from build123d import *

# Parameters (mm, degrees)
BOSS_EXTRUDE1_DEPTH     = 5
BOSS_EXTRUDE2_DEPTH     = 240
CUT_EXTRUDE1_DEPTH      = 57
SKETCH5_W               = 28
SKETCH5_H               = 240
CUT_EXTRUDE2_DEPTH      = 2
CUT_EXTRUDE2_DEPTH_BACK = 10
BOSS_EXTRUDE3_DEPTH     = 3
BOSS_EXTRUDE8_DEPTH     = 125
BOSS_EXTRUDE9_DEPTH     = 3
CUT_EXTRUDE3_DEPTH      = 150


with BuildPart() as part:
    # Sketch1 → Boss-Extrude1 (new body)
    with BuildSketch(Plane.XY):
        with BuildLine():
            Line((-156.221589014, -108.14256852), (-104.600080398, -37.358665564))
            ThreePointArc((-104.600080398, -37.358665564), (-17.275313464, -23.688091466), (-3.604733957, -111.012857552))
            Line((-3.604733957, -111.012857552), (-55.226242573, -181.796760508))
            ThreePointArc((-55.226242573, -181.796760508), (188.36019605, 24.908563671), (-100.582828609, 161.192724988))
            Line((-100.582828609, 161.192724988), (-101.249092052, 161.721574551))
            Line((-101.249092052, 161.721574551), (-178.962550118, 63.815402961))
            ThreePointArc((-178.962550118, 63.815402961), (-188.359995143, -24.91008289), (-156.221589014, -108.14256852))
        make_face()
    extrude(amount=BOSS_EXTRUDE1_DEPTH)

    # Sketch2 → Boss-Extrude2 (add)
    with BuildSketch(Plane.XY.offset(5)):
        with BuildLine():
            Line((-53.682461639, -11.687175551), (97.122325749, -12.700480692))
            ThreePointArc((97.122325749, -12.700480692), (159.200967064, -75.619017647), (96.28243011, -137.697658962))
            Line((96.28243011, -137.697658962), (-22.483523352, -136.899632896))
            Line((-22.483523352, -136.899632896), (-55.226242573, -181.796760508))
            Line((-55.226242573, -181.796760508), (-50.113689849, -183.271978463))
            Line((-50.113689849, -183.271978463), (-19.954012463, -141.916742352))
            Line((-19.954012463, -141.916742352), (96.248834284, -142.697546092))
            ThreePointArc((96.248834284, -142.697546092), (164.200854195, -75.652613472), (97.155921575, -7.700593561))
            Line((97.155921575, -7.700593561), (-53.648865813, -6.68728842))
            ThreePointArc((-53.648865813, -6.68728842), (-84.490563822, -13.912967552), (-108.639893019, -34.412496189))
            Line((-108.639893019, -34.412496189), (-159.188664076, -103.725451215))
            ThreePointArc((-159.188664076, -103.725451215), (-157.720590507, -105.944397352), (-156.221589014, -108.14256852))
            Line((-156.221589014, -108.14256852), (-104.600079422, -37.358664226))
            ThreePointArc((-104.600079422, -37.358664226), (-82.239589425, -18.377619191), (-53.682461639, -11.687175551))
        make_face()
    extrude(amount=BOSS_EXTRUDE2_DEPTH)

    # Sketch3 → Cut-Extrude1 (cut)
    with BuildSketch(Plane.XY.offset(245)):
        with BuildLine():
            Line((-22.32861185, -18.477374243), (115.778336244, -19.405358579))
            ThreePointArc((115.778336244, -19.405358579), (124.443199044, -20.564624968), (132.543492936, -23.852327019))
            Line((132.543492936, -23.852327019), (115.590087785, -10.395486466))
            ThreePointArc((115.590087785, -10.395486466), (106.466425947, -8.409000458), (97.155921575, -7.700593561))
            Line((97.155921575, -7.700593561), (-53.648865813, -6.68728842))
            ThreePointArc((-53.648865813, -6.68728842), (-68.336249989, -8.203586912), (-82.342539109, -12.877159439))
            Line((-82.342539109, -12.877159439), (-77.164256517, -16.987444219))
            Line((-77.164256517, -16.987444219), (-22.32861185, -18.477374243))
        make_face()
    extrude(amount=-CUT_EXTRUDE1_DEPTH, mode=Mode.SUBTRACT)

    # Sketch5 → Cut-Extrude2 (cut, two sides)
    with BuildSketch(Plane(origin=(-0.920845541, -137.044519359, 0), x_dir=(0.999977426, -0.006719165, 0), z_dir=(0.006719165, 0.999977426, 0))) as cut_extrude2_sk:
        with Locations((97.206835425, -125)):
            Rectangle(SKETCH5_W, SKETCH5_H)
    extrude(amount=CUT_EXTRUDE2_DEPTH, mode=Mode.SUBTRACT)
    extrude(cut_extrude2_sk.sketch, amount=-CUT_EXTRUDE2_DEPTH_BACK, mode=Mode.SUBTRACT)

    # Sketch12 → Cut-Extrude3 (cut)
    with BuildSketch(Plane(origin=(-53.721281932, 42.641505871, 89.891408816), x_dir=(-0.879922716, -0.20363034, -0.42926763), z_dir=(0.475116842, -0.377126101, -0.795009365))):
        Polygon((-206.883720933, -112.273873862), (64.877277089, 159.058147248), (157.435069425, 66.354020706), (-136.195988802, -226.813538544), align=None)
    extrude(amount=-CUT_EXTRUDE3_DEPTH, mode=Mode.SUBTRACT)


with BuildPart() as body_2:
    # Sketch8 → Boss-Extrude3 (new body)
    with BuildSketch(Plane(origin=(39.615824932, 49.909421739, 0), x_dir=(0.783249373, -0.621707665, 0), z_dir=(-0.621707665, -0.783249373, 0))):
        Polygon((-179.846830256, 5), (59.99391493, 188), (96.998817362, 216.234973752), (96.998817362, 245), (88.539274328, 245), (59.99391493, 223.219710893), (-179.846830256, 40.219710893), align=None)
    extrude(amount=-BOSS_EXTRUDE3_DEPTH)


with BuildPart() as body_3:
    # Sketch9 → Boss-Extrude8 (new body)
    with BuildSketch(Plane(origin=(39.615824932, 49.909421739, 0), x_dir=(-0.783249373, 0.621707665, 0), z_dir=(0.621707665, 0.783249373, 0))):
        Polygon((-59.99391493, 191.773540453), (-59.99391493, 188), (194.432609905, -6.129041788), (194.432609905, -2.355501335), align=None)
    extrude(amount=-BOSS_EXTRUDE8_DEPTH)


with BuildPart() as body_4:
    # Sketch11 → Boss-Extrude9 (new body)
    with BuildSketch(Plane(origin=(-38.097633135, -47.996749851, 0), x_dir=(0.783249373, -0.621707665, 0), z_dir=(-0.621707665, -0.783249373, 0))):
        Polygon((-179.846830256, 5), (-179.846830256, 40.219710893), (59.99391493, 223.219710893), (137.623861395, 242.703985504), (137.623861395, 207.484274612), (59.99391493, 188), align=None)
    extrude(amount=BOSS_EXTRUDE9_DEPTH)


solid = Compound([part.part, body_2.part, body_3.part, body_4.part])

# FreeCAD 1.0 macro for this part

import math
import FreeCAD as App
import Part
import Sketcher


def add_polygon(sketch, points):
    """Adds a closed chain of lines whose ends are joined by coincident constraints."""
    first, n = sketch.GeometryCount, len(points)
    for a, b in zip(points, points[1:] + points[:1]):
        sketch.addGeometry(Part.LineSegment(App.Vector(*a, 0), App.Vector(*b, 0)), False)
    for i in range(n):
        sketch.addConstraint(Sketcher.Constraint("Coincident", first + i, 2, first + (i + 1) % n, 1))

doc = App.newDocument("Part")
params = doc.addObject("Spreadsheet::Sheet", "Params")
for row, (alias, value) in enumerate([
    ("sketch1_radius", "190 mm"),
    ("sketch1_radius2", "190 mm"),
    ("sketch1_radius3", "62.5 mm"),
    ("sketch1_length", "125 mm"),
    ("pad1_length", "5 mm"),
    ("sketch2_radius", "189.999999 mm"),
    ("sketch2_radius2", "62.5 mm"),
    ("sketch2_radius3", "67.5 mm"),
    ("pad2_length", "240 mm"),
    ("sketch3_radius", "67.5 mm"),
    ("pocket1_length", "57 mm"),
    ("sketch4_width", "28 mm"),
    ("sketch4_height", "240 mm"),
    ("pocket2_length", "2 mm"),
    ("pocket2_length2", "10 mm"),
    ("sketch5_length", "131 mm"),
    ("pocket3_length", "150 mm"),
    ("pad3_length", "3 mm"),
    ("pad4_length", "125 mm"),
    ("pad5_length", "3 mm"),
], start=1):
    params.set(f"A{row}", alias)
    params.set(f"B{row}", "=" + value)
    params.setAlias(f"B{row}", alias)

body = doc.addObject("PartDesign::Body", "Body")

# Sketch on XY plane
sketch1 = doc.addObject("Sketcher::SketchObject", "Sketch")
body.addObject(sketch1)
sketch1.AttachmentSupport = (doc.XY_Plane, [""])
sketch1.MapMode = "FlatFace"
sketch1.addGeometry(Part.LineSegment(App.Vector(-156.221589, -108.142569, 0), App.Vector(-104.60008, -37.358666, 0)), False)
sketch1.addGeometry(Part.ArcOfCircle(Part.Circle(App.Vector(-54.102409, -74.185765, 0), App.Vector(0, 0, 1), 62.5), math.radians(-36.102633), math.radians(143.89736)), False)
sketch1.addGeometry(Part.LineSegment(App.Vector(-3.604734, -111.012858, 0), App.Vector(-55.226243, -181.796761, 0)), False)
sketch1.addGeometry(Part.ArcOfCircle(Part.Circle(App.Vector(0, 0, 0), App.Vector(0, 0, 1), 190), math.radians(-106.897739), math.radians(121.963797)), False)
sketch1.addGeometry(Part.LineSegment(App.Vector(-100.582829, 161.192725, 0), App.Vector(-101.249092, 161.721575, 0)), False)
sketch1.addGeometry(Part.LineSegment(App.Vector(-101.249092, 161.721575, 0), App.Vector(-178.96255, 63.815403, 0)), False)
sketch1.addGeometry(Part.ArcOfCircle(Part.Circle(App.Vector(0, 0, 0), App.Vector(0, 0, 1), 190), math.radians(160.374516), math.radians(214.692466)), False)
sketch1.addConstraint(Sketcher.Constraint("Coincident", 0, 2, 1, 2))
sketch1.addConstraint(Sketcher.Constraint("Coincident", 1, 1, 2, 1))
sketch1.addConstraint(Sketcher.Constraint("Coincident", 2, 2, 3, 1))
sketch1.addConstraint(Sketcher.Constraint("Coincident", 3, 2, 4, 1))
sketch1.addConstraint(Sketcher.Constraint("Coincident", 4, 2, 5, 1))
sketch1.addConstraint(Sketcher.Constraint("Coincident", 5, 2, 6, 1))
sketch1.addConstraint(Sketcher.Constraint("Coincident", 6, 2, 0, 1))
sketch1.addConstraint(Sketcher.Constraint("Coincident", 3, 3, -1, 1))
sketch1.addConstraint(Sketcher.Constraint("Coincident", 6, 3, -1, 1))
sketch1.addConstraint(Sketcher.Constraint("Radius", 3, 190.0))
sketch1.addConstraint(Sketcher.Constraint("Radius", 6, 190.0))
sketch1.addConstraint(Sketcher.Constraint("Radius", 1, 62.5))
sketch1.addConstraint(Sketcher.Constraint("Distance", 5, 125.0))
sketch1.addConstraint(Sketcher.Constraint("DistanceY", 1, 3, 0, 2, 36.827099))
sketch1.addConstraint(Sketcher.Constraint("Distance", 4, 0.85064))
sketch1.addConstraint(Sketcher.Constraint("DistanceX", 1, 3, -1, 1, 54.102409))
sketch1.addConstraint(Sketcher.Constraint("DistanceY", 2, 2, -1, 1, 181.796761))
sketch1.addConstraint(Sketcher.Constraint("DistanceX", 3, 2, -1, 1, 100.582829))
sketch1.addConstraint(Sketcher.Constraint("DistanceX", 5, 2, -1, 1, 178.96255))
sketch1.addConstraint(Sketcher.Constraint("DistanceX", 6, 2, -1, 1, 156.221589))
sketch1.addConstraint(Sketcher.Constraint("DistanceY", 1, 1, 0, 2, 73.654192))
sketch1.addConstraint(Sketcher.Constraint("DistanceY", 0, 2, 3, 2, 198.551391))
sketch1.setExpression("Constraints[9]", "Params.sketch1_radius")
sketch1.setExpression("Constraints[10]", "Params.sketch1_radius2")
sketch1.setExpression("Constraints[11]", "Params.sketch1_radius3")
sketch1.setExpression("Constraints[12]", "Params.sketch1_length")
pad1 = doc.addObject("PartDesign::Pad", "Pad")
body.addObject(pad1)
pad1.Profile = sketch1
pad1.setExpression("Length", "Params.pad1_length")

# Sketch on XY plane
sketch2 = doc.addObject("Sketcher::SketchObject", "Sketch001")
body.addObject(sketch2)
sketch2.AttachmentSupport = (doc.XY_Plane, [""])
sketch2.MapMode = "FlatFace"
sketch2.AttachmentOffset = App.Placement(App.Vector(0, 0, 5), App.Rotation())
sketch2.addGeometry(Part.LineSegment(App.Vector(-54, -12, 0), App.Vector(97, -13, 0)), False)
sketch2.addGeometry(Part.ArcOfCircle(Part.Circle(App.Vector(97, -75, 0), App.Vector(0, 0, 1), 62), math.radians(-90), math.radians(90)), False)
sketch2.addGeometry(Part.LineSegment(App.Vector(96, -138, 0), App.Vector(-22, -137, 0)), False)
sketch2.addGeometry(Part.LineSegment(App.Vector(-22, -137, 0), App.Vector(-55, -182, 0)), False)
sketch2.addGeometry(Part.LineSegment(App.Vector(-55, -182, 0), App.Vector(-50, -183, 0)), False)
sketch2.addGeometry(Part.LineSegment(App.Vector(-50, -183, 0), App.Vector(-20, -142, 0)), False)
sketch2.addGeometry(Part.LineSegment(App.Vector(-20, -142, 0), App.Vector(96, -143, 0)), False)
sketch2.addGeometry(Part.ArcOfCircle(Part.Circle(App.Vector(97, -75, 0), App.Vector(0, 0, 1), 68), math.radians(-90), math.radians(90)), False)
sketch2.addGeometry(Part.LineSegment(App.Vector(97, -8, 0), App.Vector(-54, -7, 0)), False)
sketch2.addGeometry(Part.ArcOfCircle(Part.Circle(App.Vector(-54, -74, 0), App.Vector(0, 0, 1), 68), math.radians(90), math.radians(144)), False)
sketch2.addGeometry(Part.LineSegment(App.Vector(-109, -34, 0), App.Vector(-159, -104, 0)), False)
sketch2.addGeometry(Part.ArcOfCircle(Part.Circle(App.Vector(0, 0, 0), App.Vector(0, 0, 1), 190), math.radians(-146.91), math.radians(-145.31)), False)
sketch2.addGeometry(Part.LineSegment(App.Vector(-156, -108, 0), App.Vector(-105, -37, 0)), False)
sketch2.addGeometry(Part.ArcOfCircle(Part.Circle(App.Vector(-54, -74, 0), App.Vector(0, 0, 1), 62), math.radians(90), math.radians(144)), False)
sketch2.addConstraint(Sketcher.Constraint("Tangent", 0, 2, 1, 2))
sketch2.addConstraint(Sketcher.Constraint("Tangent", 1, 1, 2, 1))
sketch2.addConstraint(Sketcher.Constraint("Coincident", 2, 2, 3, 1))
sketch2.addConstraint(Sketcher.Constraint("Coincident", 3, 2, 4, 1))
sketch2.addConstraint(Sketcher.Constraint("Coincident", 4, 2, 5, 1))
sketch2.addConstraint(Sketcher.Constraint("Coincident", 5, 2, 6, 1))
sketch2.addConstraint(Sketcher.Constraint("Tangent", 6, 2, 7, 1))
sketch2.addConstraint(Sketcher.Constraint("Tangent", 7, 2, 8, 1))
sketch2.addConstraint(Sketcher.Constraint("Tangent", 8, 2, 9, 1))
sketch2.addConstraint(Sketcher.Constraint("Tangent", 9, 2, 10, 1))
sketch2.addConstraint(Sketcher.Constraint("Coincident", 10, 2, 11, 1))
sketch2.addConstraint(Sketcher.Constraint("Coincident", 11, 2, 12, 1))
sketch2.addConstraint(Sketcher.Constraint("Tangent", 12, 2, 13, 2))
sketch2.addConstraint(Sketcher.Constraint("Tangent", 13, 1, 0, 1))
sketch2.addConstraint(Sketcher.Constraint("Coincident", 11, 3, -1, 1))
sketch2.addConstraint(Sketcher.Constraint("Coincident", 7, 3, 1, 3))
sketch2.addConstraint(Sketcher.Constraint("Coincident", 13, 3, 9, 3))
sketch2.addConstraint(Sketcher.Constraint("Equal", 7, 9))
sketch2.addConstraint(Sketcher.Constraint("Equal", 1, 13))
sketch2.addConstraint(Sketcher.Constraint("Parallel", 0, 2))
sketch2.addConstraint(Sketcher.Constraint("Parallel", 3, 5))
sketch2.addConstraint(Sketcher.Constraint("Parallel", 2, 6))
sketch2.addConstraint(Sketcher.Constraint("Parallel", 5, 10))
sketch2.addConstraint(Sketcher.Constraint("Parallel", 10, 12))
sketch2.addConstraint(Sketcher.Constraint("Radius", 11, 189.999999))
sketch2.addConstraint(Sketcher.Constraint("Radius", 1, 62.5))
sketch2.addConstraint(Sketcher.Constraint("Radius", 7, 67.5))
sketch2.addConstraint(Sketcher.Constraint("DistanceX", 2, 2, 1, 3, 119.185901))
sketch2.addConstraint(Sketcher.Constraint("DistanceY", 3, 2, 1, 1, 44.099102))
sketch2.addConstraint(Sketcher.Constraint("DistanceY", 13, 3, 12, 2, 36.8271))
sketch2.addConstraint(Sketcher.Constraint("Distance", 0, 150.808192))
sketch2.addConstraint(Sketcher.Constraint("Distance", 6, 116.20547))
sketch2.addConstraint(Sketcher.Constraint("Distance", 10, 85.787318))
sketch2.addConstraint(Sketcher.Constraint("DistanceY", 1, 3, -1, 1, 75.19907))
sketch2.addConstraint(Sketcher.Constraint("DistanceX", 9, 3, -1, 1, 54.102409))
sketch2.addConstraint(Sketcher.Constraint("DistanceX", 4, 2, -1, 1, 50.11369))
sketch2.setExpression("Constraints[24]", "Params.sketch2_radius")
sketch2.setExpression("Constraints[25]", "Params.sketch2_radius2")
sketch2.setExpression("Constraints[26]", "Params.sketch2_radius3")
pad2 = doc.addObject("PartDesign::Pad", "Pad001")
body.addObject(pad2)
pad2.Profile = sketch2
pad2.setExpression("Length", "Params.pad2_length")

# Sketch on XY plane
sketch3 = doc.addObject("Sketcher::SketchObject", "Sketch002")
body.addObject(sketch3)
sketch3.AttachmentSupport = (doc.XY_Plane, [""])
sketch3.MapMode = "FlatFace"
sketch3.AttachmentOffset = App.Placement(App.Vector(0, 0, 245), App.Rotation())
sketch3.addGeometry(Part.LineSegment(App.Vector(-22, -18, 0), App.Vector(116, -19, 0)), False)
sketch3.addGeometry(Part.ArcOfCircle(Part.Circle(App.Vector(116, -54, 0), App.Vector(0, 0, 1), 35), math.radians(61), math.radians(90)), False)
sketch3.addGeometry(Part.LineSegment(App.Vector(133, -24, 0), App.Vector(116, -10, 0)), False)
sketch3.addGeometry(Part.ArcOfCircle(Part.Circle(App.Vector(97, -75, 0), App.Vector(0, 0, 1), 68), math.radians(73.75), math.radians(89.62)), False)
sketch3.addGeometry(Part.LineSegment(App.Vector(97, -8, 0), App.Vector(-54, -7, 0)), False)
sketch3.addGeometry(Part.ArcOfCircle(Part.Circle(App.Vector(-54, -74, 0), App.Vector(0, 0, 1), 67), math.radians(90), math.radians(115)), False)
sketch3.addGeometry(Part.LineSegment(App.Vector(-82, -13, 0), App.Vector(-77, -17, 0)), False)
sketch3.addGeometry(Part.LineSegment(App.Vector(-77, -17, 0), App.Vector(-22, -18, 0)), False)
sketch3.addConstraint(Sketcher.Constraint("Tangent", 0, 2, 1, 2))
sketch3.addConstraint(Sketcher.Constraint("Coincident", 1, 1, 2, 1))
sketch3.addConstraint(Sketcher.Constraint("Coincident", 2, 2, 3, 1))
sketch3.addConstraint(Sketcher.Constraint("Tangent", 3, 2, 4, 1))
sketch3.addConstraint(Sketcher.Constraint("Tangent", 4, 2, 5, 1))
sketch3.addConstraint(Sketcher.Constraint("Coincident", 5, 2, 6, 1))
sketch3.addConstraint(Sketcher.Constraint("Coincident", 6, 2, 7, 1))
sketch3.addConstraint(Sketcher.Constraint("Coincident", 7, 2, 0, 1))
sketch3.addConstraint(Sketcher.Constraint("Equal", 3, 5))
sketch3.addConstraint(Sketcher.Constraint("Parallel", 0, 4))
sketch3.addConstraint(Sketcher.Constraint("Parallel", 2, 6))
sketch3.addConstraint(Sketcher.Constraint("Radius", 3, 67.5))
sketch3.addConstraint(Sketcher.Constraint("Radius", 1, 34.705898))
sketch3.addConstraint(Sketcher.Constraint("DistanceY", 2, 2, 4, 2, 3.708198))
sketch3.addConstraint(Sketcher.Constraint("Distance", 4, 150.808192))
sketch3.addConstraint(Sketcher.Constraint("DistanceX", -1, 1, 1, 3, 115.545142))
sketch3.addConstraint(Sketcher.Constraint("DistanceY", 3, 3, -1, 1, 75.19907))
sketch3.addConstraint(Sketcher.Constraint("DistanceX", 5, 3, -1, 1, 54.102409))
sketch3.addConstraint(Sketcher.Constraint("DistanceY", 0, 2, -1, 1, 19.405359))
sketch3.addConstraint(Sketcher.Constraint("DistanceY", 4, 2, -1, 1, 6.687288))
sketch3.addConstraint(Sketcher.Constraint("DistanceX", 5, 2, -1, 1, 82.342539))
sketch3.addConstraint(Sketcher.Constraint("DistanceX", 7, 2, -1, 1, 22.328612))
sketch3.addConstraint(Sketcher.Constraint("DistanceY", 1, 1, 0, 2, 4.446968))
sketch3.addConstraint(Sketcher.Constraint("DistanceX", 6, 2, 4, 2, 23.515391))
sketch3.setExpression("Constraints[11]", "Params.sketch3_radius")
pocket1 = doc.addObject("PartDesign::Pocket", "Pocket")
body.addObject(pocket1)
pocket1.Profile = sketch3
pocket1.setExpression("Length", "Params.pocket1_length")

# Sketch on an angled plane
sketch4 = doc.addObject("Sketcher::SketchObject", "Sketch003")
body.addObject(sketch4)
sketch4.Placement = App.Placement(App.Vector(-0.920846, -137.044519, 0), App.Rotation(App.Vector(0.999977426, -0.006719165, 0), App.Vector(0, 0, -1), App.Vector(0.006719165, 0.999977426, 0), "ZXY"))
add_polygon(sketch4, [(83, -5), (83, -245), (111, -245), (111, -5)])  # lines 0-3
sketch4.addConstraint(Sketcher.Constraint("Vertical", 0))
sketch4.addConstraint(Sketcher.Constraint("Horizontal", 1))
sketch4.addConstraint(Sketcher.Constraint("Vertical", 2))
sketch4.addConstraint(Sketcher.Constraint("Horizontal", 3))
sketch4.addConstraint(Sketcher.Constraint("DistanceX", 1, 1, 1, 2, 28.0))
sketch4.addConstraint(Sketcher.Constraint("DistanceY", 0, 2, 0, 1, 240.0))
sketch4.addConstraint(Sketcher.Constraint("DistanceY", 0, 2, -1, 1, 245.0))
sketch4.addConstraint(Sketcher.Constraint("DistanceX", -1, 1, 0, 2, 83.206835))
sketch4.setExpression("Constraints[8]", "Params.sketch4_width")
sketch4.setExpression("Constraints[9]", "Params.sketch4_height")
pocket2 = doc.addObject("PartDesign::Pocket", "Pocket001")
body.addObject(pocket2)
pocket2.Profile = sketch4
pocket2.Type = "TwoLengths"
pocket2.setExpression("Length", "Params.pocket2_length")
pocket2.setExpression("Length2", "Params.pocket2_length2")
pocket2.Reversed = True

# Sketch on an angled plane
sketch5 = doc.addObject("Sketcher::SketchObject", "Sketch004")
body.addObject(sketch5)
sketch5.Placement = App.Placement(App.Vector(-53.721282, 42.641506, 89.891409), App.Rotation(App.Vector(-0.879922716, -0.20363034, -0.42926763), App.Vector(0, 0.90349908, -0.428590027), App.Vector(0.475116842, -0.377126101, -0.795009365), "ZXY"))
add_polygon(sketch5, [(65, 159), (-207, -112), (-136, -227), (157, 66)])  # lines 0-3
sketch5.addConstraint(Sketcher.Constraint("Parallel", 0, 2))
sketch5.addConstraint(Sketcher.Constraint("Perpendicular", 2, 3))
sketch5.addConstraint(Sketcher.Constraint("Distance", 3, 131.0))
sketch5.addConstraint(Sketcher.Constraint("Distance", 2, 414.929411))
sketch5.addConstraint(Sketcher.Constraint("DistanceX", 0, 2, -1, 1, 206.883721))
sketch5.addConstraint(Sketcher.Constraint("DistanceX", 1, 2, -1, 1, 136.195989))
sketch5.addConstraint(Sketcher.Constraint("DistanceY", 1, 2, -1, 1, 226.813538))
sketch5.addConstraint(Sketcher.Constraint("DistanceX", -1, 1, 2, 2, 157.435069))
sketch5.setExpression("Constraints[6]", "Params.sketch5_length")
pocket3 = doc.addObject("PartDesign::Pocket", "Pocket002")
body.addObject(pocket3)
pocket3.Profile = sketch5
pocket3.setExpression("Length", "Params.pocket3_length")
body2 = doc.addObject("PartDesign::Body", "Body001")

# Sketch on an angled plane
sketch6 = doc.addObject("Sketcher::SketchObject", "Sketch005")
body2.addObject(sketch6)
sketch6.Placement = App.Placement(App.Vector(39.615825, 49.909422, 0), App.Rotation(App.Vector(0.783249373, -0.621707665, 0), App.Vector(0, 0, 1.000000001), App.Vector(-0.621707665, -0.783249373, 0), "ZXY"))
add_polygon(sketch6, [(-180, 5), (60, 188), (97, 216), (97, 245), (89, 245), (60, 223), (-180, 40)])  # lines 0-6
sketch6.addConstraint(Sketcher.Constraint("Vertical", 2))
sketch6.addConstraint(Sketcher.Constraint("Horizontal", 3))
sketch6.addConstraint(Sketcher.Constraint("Vertical", 6))
sketch6.addConstraint(Sketcher.Constraint("Parallel", 0, 1))
sketch6.addConstraint(Sketcher.Constraint("Parallel", 1, 4))
sketch6.addConstraint(Sketcher.Constraint("Parallel", 4, 5))
sketch6.addConstraint(Sketcher.Constraint("Vertical", 0, 2, 4, 2))
sketch6.addConstraint(Sketcher.Constraint("DistanceY", -1, 1, 0, 2, 188.0))
sketch6.addConstraint(Sketcher.Constraint("DistanceY", -1, 1, 2, 2, 245.000001))
sketch6.addConstraint(Sketcher.Constraint("DistanceY", -1, 1, 6, 2, 5.0))
sketch6.addConstraint(Sketcher.Constraint("Distance", 1, 46.546499))
sketch6.addConstraint(Sketcher.Constraint("DistanceY", 6, 2, 6, 1, 35.219711))
sketch6.addConstraint(Sketcher.Constraint("Distance", 0, 301.682918))
sketch6.addConstraint(Sketcher.Constraint("DistanceX", 5, 2, -1, 1, 179.84683))
pad3 = doc.addObject("PartDesign::Pad", "Pad002")
body2.addObject(pad3)
pad3.Profile = sketch6
pad3.setExpression("Length", "Params.pad3_length")
pad3.Reversed = True
body3 = doc.addObject("PartDesign::Body", "Body002")

# Sketch on an angled plane
sketch7 = doc.addObject("Sketcher::SketchObject", "Sketch006")
body3.addObject(sketch7)
sketch7.Placement = App.Placement(App.Vector(39.615825, 49.909422, 0), App.Rotation(App.Vector(-0.783249373, 0.621707665, 0), App.Vector(0, 0, 1.000000001), App.Vector(0.621707665, 0.783249373, 0), "ZXY"))
add_polygon(sketch7, [(-60, 191.8), (-60, 188), (194.4, -6.1), (194.4, -2.4)])  # lines 0-3
sketch7.addConstraint(Sketcher.Constraint("Vertical", 0))
sketch7.addConstraint(Sketcher.Constraint("Vertical", 2))
sketch7.addConstraint(Sketcher.Constraint("Parallel", 1, 3))
sketch7.addConstraint(Sketcher.Constraint("DistanceY", -1, 1, 0, 2, 188.0))
sketch7.addConstraint(Sketcher.Constraint("DistanceY", 0, 2, 0, 1, 3.77354))
sketch7.addConstraint(Sketcher.Constraint("DistanceY", 2, 2, -1, 1, 2.355501))
sketch7.addConstraint(Sketcher.Constraint("DistanceX", -1, 1, 1, 2, 194.43261))
sketch7.addConstraint(Sketcher.Constraint("Distance", 1, 320.029595))
pad4 = doc.addObject("PartDesign::Pad", "Pad003")
body3.addObject(pad4)
pad4.Profile = sketch7
pad4.setExpression("Length", "Params.pad4_length")
pad4.Reversed = True
body4 = doc.addObject("PartDesign::Body", "Body003")

# Sketch on an angled plane
sketch8 = doc.addObject("Sketcher::SketchObject", "Sketch007")
body4.addObject(sketch8)
sketch8.Placement = App.Placement(App.Vector(-38.097633, -47.99675, 0), App.Rotation(App.Vector(0.783249373, -0.621707665, 0), App.Vector(0, 0, 1.000000001), App.Vector(-0.621707665, -0.783249373, 0), "ZXY"))
add_polygon(sketch8, [(-180, 40), (-180, 5), (60, 188), (138, 207), (138, 243), (60, 223)])  # lines 0-5
sketch8.addConstraint(Sketcher.Constraint("Vertical", 0))
sketch8.addConstraint(Sketcher.Constraint("Vertical", 3))
sketch8.addConstraint(Sketcher.Constraint("Parallel", 2, 4))
sketch8.addConstraint(Sketcher.Constraint("Parallel", 1, 5))
sketch8.addConstraint(Sketcher.Constraint("Vertical", 1, 2, 4, 2))
sketch8.addConstraint(Sketcher.Constraint("DistanceY", -1, 1, 0, 2, 5.0))
sketch8.addConstraint(Sketcher.Constraint("DistanceY", -1, 1, 1, 2, 188.0))
sketch8.addConstraint(Sketcher.Constraint("DistanceY", 0, 2, 0, 1, 35.219711))
sketch8.addConstraint(Sketcher.Constraint("Distance", 1, 301.682918))
sketch8.addConstraint(Sketcher.Constraint("DistanceX", 0, 2, -1, 1, 179.84683))
sketch8.addConstraint(Sketcher.Constraint("DistanceX", -1, 1, 2, 2, 137.623862))
sketch8.addConstraint(Sketcher.Constraint("Distance", 2, 80.037776))
pad5 = doc.addObject("PartDesign::Pad", "Pad004")
body4.addObject(pad5)
pad5.Profile = sketch8
pad5.setExpression("Length", "Params.pad5_length")

doc.recompute()
